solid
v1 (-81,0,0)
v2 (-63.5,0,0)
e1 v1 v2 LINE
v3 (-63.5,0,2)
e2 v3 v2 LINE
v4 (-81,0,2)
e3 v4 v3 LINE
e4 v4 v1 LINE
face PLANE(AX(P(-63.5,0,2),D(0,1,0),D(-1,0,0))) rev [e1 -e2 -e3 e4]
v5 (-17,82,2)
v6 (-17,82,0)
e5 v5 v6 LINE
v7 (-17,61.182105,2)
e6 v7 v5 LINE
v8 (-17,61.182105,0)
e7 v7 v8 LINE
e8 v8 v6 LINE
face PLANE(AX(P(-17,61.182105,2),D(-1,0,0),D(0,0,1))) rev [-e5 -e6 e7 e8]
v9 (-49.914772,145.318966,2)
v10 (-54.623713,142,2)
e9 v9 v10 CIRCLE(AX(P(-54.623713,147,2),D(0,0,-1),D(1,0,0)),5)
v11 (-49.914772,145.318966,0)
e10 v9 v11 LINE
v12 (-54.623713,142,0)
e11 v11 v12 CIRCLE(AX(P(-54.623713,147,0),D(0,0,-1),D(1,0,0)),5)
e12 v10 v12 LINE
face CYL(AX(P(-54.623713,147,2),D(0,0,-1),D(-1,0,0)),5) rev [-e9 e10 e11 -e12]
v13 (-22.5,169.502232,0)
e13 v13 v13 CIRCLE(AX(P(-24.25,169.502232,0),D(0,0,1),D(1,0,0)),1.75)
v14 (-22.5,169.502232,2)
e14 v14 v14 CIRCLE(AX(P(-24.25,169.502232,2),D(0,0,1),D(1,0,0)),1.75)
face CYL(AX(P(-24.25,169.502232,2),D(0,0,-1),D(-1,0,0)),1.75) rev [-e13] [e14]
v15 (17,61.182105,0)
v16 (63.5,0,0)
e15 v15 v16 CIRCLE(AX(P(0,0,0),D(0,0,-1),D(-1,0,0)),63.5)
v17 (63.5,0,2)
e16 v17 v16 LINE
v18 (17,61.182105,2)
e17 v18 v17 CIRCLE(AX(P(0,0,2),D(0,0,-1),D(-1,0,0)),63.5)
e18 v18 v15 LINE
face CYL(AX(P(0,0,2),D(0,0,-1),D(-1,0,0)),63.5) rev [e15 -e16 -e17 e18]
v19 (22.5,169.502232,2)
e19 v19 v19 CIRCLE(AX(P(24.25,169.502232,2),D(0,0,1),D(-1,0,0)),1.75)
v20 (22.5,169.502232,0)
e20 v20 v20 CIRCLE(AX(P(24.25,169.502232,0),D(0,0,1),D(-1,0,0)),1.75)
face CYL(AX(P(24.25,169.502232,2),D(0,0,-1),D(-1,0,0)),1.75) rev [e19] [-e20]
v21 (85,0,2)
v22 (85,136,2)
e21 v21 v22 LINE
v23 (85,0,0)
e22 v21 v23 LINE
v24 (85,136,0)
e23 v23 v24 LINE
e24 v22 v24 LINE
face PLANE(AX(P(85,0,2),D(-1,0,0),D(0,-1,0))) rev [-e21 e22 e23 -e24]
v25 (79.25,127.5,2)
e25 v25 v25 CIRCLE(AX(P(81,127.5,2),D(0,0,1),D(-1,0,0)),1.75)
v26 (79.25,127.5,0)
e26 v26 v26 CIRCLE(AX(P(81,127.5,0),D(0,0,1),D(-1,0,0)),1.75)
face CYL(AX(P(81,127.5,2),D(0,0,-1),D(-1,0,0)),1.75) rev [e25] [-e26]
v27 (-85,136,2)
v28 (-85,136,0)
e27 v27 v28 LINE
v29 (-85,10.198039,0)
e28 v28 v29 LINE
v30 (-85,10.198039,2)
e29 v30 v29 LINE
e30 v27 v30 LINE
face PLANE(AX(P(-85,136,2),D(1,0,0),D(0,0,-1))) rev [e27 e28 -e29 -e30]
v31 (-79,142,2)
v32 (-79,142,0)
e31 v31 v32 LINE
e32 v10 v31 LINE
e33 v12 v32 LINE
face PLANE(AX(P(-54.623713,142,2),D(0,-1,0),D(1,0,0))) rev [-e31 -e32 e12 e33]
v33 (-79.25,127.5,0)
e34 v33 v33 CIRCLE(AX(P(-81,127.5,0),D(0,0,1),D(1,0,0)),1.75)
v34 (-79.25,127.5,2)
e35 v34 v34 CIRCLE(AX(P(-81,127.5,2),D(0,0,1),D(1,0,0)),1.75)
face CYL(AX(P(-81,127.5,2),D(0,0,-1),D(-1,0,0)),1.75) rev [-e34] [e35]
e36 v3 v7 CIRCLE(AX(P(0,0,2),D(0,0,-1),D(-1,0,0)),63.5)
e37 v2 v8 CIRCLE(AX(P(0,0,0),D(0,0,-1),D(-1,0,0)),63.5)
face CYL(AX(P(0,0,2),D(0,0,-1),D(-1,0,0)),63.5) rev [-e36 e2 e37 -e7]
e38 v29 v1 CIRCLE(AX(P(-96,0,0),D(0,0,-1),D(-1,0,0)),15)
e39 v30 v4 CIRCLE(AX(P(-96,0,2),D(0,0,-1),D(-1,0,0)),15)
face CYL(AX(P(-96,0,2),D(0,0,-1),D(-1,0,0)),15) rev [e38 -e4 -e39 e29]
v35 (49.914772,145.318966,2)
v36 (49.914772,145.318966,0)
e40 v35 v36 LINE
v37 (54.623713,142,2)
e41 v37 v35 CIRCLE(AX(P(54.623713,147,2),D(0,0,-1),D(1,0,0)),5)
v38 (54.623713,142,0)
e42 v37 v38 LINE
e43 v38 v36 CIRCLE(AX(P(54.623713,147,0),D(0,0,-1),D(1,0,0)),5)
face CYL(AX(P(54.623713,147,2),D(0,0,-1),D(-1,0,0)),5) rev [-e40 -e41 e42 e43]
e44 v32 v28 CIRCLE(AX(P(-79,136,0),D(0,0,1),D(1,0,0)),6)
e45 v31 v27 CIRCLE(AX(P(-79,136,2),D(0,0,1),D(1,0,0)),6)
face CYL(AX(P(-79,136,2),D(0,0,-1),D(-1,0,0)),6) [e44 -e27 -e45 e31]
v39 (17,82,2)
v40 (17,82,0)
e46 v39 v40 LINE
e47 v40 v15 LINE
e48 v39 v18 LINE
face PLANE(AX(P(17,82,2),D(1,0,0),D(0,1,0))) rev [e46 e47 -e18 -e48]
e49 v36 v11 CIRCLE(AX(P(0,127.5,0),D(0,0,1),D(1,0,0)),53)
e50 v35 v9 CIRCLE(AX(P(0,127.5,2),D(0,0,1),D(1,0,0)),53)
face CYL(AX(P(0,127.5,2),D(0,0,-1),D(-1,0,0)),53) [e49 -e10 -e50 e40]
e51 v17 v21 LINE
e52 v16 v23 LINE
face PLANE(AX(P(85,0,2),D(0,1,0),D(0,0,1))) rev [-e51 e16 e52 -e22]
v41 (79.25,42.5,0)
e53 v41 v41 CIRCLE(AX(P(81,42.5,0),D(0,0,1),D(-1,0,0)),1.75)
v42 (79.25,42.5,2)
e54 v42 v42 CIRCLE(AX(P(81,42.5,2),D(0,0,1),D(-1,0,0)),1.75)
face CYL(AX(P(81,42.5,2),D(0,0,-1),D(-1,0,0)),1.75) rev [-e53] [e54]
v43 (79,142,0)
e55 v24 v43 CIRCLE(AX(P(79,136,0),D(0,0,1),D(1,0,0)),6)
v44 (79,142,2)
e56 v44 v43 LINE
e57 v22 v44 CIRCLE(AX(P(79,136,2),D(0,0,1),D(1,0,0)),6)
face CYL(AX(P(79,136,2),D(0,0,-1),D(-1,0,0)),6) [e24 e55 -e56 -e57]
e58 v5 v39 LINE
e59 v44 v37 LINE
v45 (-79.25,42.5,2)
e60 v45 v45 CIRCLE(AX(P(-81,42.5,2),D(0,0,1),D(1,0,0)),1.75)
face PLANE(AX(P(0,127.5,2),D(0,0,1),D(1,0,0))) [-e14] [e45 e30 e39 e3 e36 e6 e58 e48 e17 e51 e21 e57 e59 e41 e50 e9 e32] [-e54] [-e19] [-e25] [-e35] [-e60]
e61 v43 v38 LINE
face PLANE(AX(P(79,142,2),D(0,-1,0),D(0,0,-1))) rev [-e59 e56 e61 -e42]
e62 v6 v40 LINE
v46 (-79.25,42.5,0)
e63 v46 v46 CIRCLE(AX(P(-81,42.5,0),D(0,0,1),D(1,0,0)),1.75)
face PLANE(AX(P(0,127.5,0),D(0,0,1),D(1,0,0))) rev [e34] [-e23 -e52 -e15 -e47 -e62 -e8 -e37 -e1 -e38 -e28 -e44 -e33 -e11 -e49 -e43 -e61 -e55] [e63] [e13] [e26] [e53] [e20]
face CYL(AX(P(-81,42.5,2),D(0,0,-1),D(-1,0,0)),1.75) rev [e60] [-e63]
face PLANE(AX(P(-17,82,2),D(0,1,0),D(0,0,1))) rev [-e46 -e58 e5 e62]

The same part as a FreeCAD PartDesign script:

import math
import FreeCAD as App
import Part
import Sketcher
from FreeCAD import Vector
Q = App.Units.Quantity

doc = App.newDocument("Part")
params = doc.addObject("Spreadsheet::Sheet", "Params")
for row, (alias, value) in enumerate([
    ("sketch1_radius", "5 mm"),
    ("sketch1_radius2", "53 mm"),
    ("sketch1_radius3", "6 mm"),
    ("sketch1_radius4", "15 mm"),
    ("sketch1_diameter", "3.5 mm"),
    ("pad1_length", "2 mm"),
], start=1):
    params.set(f"A{row}", alias)
    params.set(f"B{row}", "=" + value)
    params.setAlias(f"B{row}", alias)

body = doc.addObject("PartDesign::Body", "Body")

# Sketch on XY plane
sketch1 = body.newObject("Sketcher::SketchObject", "Sketch")
sketch1.AttachmentSupport = (doc.getObject("XY_Plane"), [""])
sketch1.MapMode = "FlatFace"
sketch1.addGeometry([
    Part.LineSegment(Vector(79, 142, 0), Vector(54.6, 142, 0)),  # 0
    Part.ArcOfCircle(Part.Circle(Vector(54.6, 147, 0), Vector(0, 0, 1), 5), math.radians(-160), math.radians(-90)),  # 1
    Part.ArcOfCircle(Part.Circle(Vector(0, 127.5, 0), Vector(0, 0, 1), 53), math.radians(20), math.radians(160)),  # 2
    Part.ArcOfCircle(Part.Circle(Vector(-54.6, 147, 0), Vector(0, 0, 1), 5), math.radians(-90), math.radians(-20)),  # 3
    Part.LineSegment(Vector(-54.6, 142, 0), Vector(-79, 142, 0)),  # 4
    Part.ArcOfCircle(Part.Circle(Vector(-79, 136, 0), Vector(0, 0, 1), 6), math.radians(90), math.radians(180)),  # 5
    Part.LineSegment(Vector(-85, 136, 0), Vector(-85, 10.2, 0)),  # 6
    Part.ArcOfCircle(Part.Circle(Vector(-96, 0, 0), Vector(0, 0, 1), 15), math.radians(0), math.radians(43)),  # 7
    Part.LineSegment(Vector(-81, 0, 0), Vector(-63.5, 0, 0)),  # 8
    Part.ArcOfCircle(Part.Circle(Vector(0, 0, 0), Vector(0, 0, 1), 63.5), math.radians(106), math.radians(180)),  # 9
    Part.LineSegment(Vector(-17, 61.2, 0), Vector(-17, 82, 0)),  # 10
    Part.LineSegment(Vector(-17, 82, 0), Vector(17, 82, 0)),  # 11
    Part.LineSegment(Vector(17, 82, 0), Vector(17, 61.2, 0)),  # 12
    Part.ArcOfCircle(Part.Circle(Vector(0, 0, 0), Vector(0, 0, 1), 63.5), math.radians(0), math.radians(74)),  # 13
    Part.LineSegment(Vector(63.5, 0, 0), Vector(85, 0, 0)),  # 14
    Part.LineSegment(Vector(85, 0, 0), Vector(85, 136, 0)),  # 15
    Part.ArcOfCircle(Part.Circle(Vector(79, 136, 0), Vector(0, 0, 1), 6), math.radians(0), math.radians(90)),  # 16
    Part.Circle(Vector(-81, 42.5, 0), Vector(0, 0, 1), 1.8),  # 17
    Part.Circle(Vector(81, 42.5, 0), Vector(0, 0, 1), 1.8),  # 18
    Part.Circle(Vector(-81, 127.5, 0), Vector(0, 0, 1), 1.8),  # 19
    Part.Circle(Vector(-24.2, 169.5, 0), Vector(0, 0, 1), 1.8),  # 20
    Part.Circle(Vector(81, 127.5, 0), Vector(0, 0, 1), 1.8),  # 21
    Part.Circle(Vector(24.2, 169.5, 0), Vector(0, 0, 1), 1.8),  # 22
], False)
sketch1.addConstraint([
    Sketcher.Constraint("Tangent", 0, 2, 1, 2),
    Sketcher.Constraint("Tangent", 1, 1, 2, 1),
    Sketcher.Constraint("Tangent", 2, 2, 3, 2),
    Sketcher.Constraint("Tangent", 3, 1, 4, 1),
    Sketcher.Constraint("Tangent", 4, 2, 5, 1),
    Sketcher.Constraint("Tangent", 5, 2, 6, 1),
    Sketcher.Constraint("Coincident", 6, 2, 7, 2),
    Sketcher.Constraint("Coincident", 7, 1, 8, 1),
    Sketcher.Constraint("Coincident", 8, 2, 9, 2),
    Sketcher.Constraint("Coincident", 9, 1, 10, 1),
    Sketcher.Constraint("Coincident", 10, 2, 11, 1),
    Sketcher.Constraint("Coincident", 11, 2, 12, 1),
    Sketcher.Constraint("Coincident", 12, 2, 13, 2),
    Sketcher.Constraint("Coincident", 13, 1, 14, 1),
    Sketcher.Constraint("Coincident", 14, 2, 15, 1),
    Sketcher.Constraint("Tangent", 15, 2, 16, 1),
    Sketcher.Constraint("Tangent", 16, 2, 0, 1),
    Sketcher.Constraint("Horizontal", 0),
    Sketcher.Constraint("Horizontal", 4),
    Sketcher.Constraint("Vertical", 6),
    Sketcher.Constraint("Horizontal", 8),
    Sketcher.Constraint("Vertical", 10),
    Sketcher.Constraint("Horizontal", 11),
    Sketcher.Constraint("Vertical", 12),
    Sketcher.Constraint("Horizontal", 14),
    Sketcher.Constraint("Vertical", 15),
    Sketcher.Constraint("Coincident", 9, 3, -1, 1),
    Sketcher.Constraint("Coincident", 13, 3, -1, 1),
    Sketcher.Constraint("Equal", 1, 3),
    Sketcher.Constraint("Equal", 9, 13),
    Sketcher.Constraint("Equal", 5, 16),
    Sketcher.Constraint("Equal", 17, 18),
    Sketcher.Constraint("Equal", 18, 19),
    Sketcher.Constraint("Equal", 19, 20),
    Sketcher.Constraint("Equal", 20, 21),
    Sketcher.Constraint("Equal", 21, 22),
    Sketcher.Constraint("Symmetric", 1, 3, 3, 3, -2),
    Sketcher.Constraint("Symmetric", 17, 3, 18, 3, -2),
    Sketcher.Constraint("Symmetric", 19, 3, 21, 3, -2),
    Sketcher.Constraint("Symmetric", 20, 3, 22, 3, -2),
    Sketcher.Constraint("PointOnObject", 7, 3, -1),
    Sketcher.Constraint("PointOnObject", 7, 1, -1),
    Sketcher.Constraint("PointOnObject", 13, 1, -1),
    Sketcher.Constraint("Horizontal", 2, 3, 19, 3),
    Sketcher.Constraint("Horizontal", 9, 1, 12, 2),
    Sketcher.Constraint("Vertical", 17, 3, 19, 3),
    Sketcher.Constraint("Vertical", 19, 3, 7, 1),
    Sketcher.Constraint("Equal", 0, 4),
    Sketcher.Constraint("Radius", 1, Q("5 mm")),
    Sketcher.Constraint("Radius", 2, Q("53 mm")),
    Sketcher.Constraint("Radius", 5, Q("6 mm")),
    Sketcher.Constraint("Radius", 7, Q("15 mm")),
    Sketcher.Constraint("Diameter", 17, Q("3.5 mm")),
    Sketcher.Constraint("Radius", 9, Q("63.5 mm")),
    Sketcher.Constraint("DistanceX", 11, 1, 11, 2, Q("34 mm")),
    Sketcher.Constraint("DistanceY", 15, 1, 15, 2, Q("136 mm")),
    Sketcher.Constraint("DistanceX", 8, 1, 8, 2, Q("17.5 mm")),
    Sketcher.Constraint("DistanceX", 14, 1, 14, 2, Q("21.5 mm")),
    Sketcher.Constraint("DistanceY", -1, 1, 10, 2, Q("82 mm")),
    Sketcher.Constraint("DistanceY", 18, 3, 2, 3, Q("85 mm")),
    Sketcher.Constraint("DistanceY", -1, 1, 2, 3, Q("127.5 mm")),
    Sketcher.Constraint("DistanceX", 20, 3, 22, 3, Q("48.5 mm")),
    Sketcher.Constraint("DistanceY", -1, 1, 20, 3, Q("169.502232 mm")),
])
sketch1.setExpression("Constraints[48]", "Params.sketch1_radius")
sketch1.setExpression("Constraints[49]", "Params.sketch1_radius2")
sketch1.setExpression("Constraints[50]", "Params.sketch1_radius3")
sketch1.setExpression("Constraints[51]", "Params.sketch1_radius4")
sketch1.setExpression("Constraints[52]", "Params.sketch1_diameter")
pad1 = body.newObject("PartDesign::Pad", "Pad")
pad1.Profile = sketch1
pad1.setExpression("Length", "Params.pad1_length")

doc.recompute()
